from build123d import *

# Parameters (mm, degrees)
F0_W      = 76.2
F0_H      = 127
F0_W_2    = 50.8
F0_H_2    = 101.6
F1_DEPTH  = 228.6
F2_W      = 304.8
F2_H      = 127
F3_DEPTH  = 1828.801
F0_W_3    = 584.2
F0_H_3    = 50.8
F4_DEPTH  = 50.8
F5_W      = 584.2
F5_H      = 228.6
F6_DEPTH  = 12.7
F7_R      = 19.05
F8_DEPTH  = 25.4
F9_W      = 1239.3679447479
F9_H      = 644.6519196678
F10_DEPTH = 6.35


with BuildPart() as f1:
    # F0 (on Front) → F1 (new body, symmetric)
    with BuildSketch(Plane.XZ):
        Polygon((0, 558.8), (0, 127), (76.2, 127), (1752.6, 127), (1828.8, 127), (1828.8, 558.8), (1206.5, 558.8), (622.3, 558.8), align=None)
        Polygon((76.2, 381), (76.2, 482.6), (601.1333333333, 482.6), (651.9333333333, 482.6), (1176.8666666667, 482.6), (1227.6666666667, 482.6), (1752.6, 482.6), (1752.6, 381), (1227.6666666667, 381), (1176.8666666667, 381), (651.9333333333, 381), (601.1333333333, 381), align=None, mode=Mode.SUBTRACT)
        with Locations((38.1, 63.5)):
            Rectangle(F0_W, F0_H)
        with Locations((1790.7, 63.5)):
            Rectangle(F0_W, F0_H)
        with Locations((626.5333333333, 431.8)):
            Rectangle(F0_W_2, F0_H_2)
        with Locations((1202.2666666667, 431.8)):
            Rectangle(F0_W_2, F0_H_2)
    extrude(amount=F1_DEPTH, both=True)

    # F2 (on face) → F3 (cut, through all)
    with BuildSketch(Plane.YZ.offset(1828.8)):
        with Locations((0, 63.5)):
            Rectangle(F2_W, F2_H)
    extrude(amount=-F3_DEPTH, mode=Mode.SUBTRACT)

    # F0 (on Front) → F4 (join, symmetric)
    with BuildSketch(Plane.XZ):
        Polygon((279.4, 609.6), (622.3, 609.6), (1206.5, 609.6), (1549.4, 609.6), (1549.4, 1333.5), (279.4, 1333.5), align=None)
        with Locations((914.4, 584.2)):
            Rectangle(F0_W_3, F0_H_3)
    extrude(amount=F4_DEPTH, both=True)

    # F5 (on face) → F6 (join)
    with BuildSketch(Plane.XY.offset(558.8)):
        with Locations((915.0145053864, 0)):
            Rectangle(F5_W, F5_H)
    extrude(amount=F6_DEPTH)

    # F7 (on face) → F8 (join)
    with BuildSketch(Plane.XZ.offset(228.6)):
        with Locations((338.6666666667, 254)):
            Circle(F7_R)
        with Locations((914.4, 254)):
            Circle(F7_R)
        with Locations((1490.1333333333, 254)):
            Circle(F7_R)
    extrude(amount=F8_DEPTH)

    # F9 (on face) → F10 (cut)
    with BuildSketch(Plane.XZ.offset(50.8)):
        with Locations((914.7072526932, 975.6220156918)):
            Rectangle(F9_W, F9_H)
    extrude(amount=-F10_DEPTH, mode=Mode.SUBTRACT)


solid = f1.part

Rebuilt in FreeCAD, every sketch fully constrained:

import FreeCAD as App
import Part
import Sketcher

V = App.Vector
Q = App.Units.Quantity

doc = App.newDocument("Part")
body = doc.addObject("PartDesign::Body", "Body")

# Sketch on XZ plane
sketch1 = body.newObject("Sketcher::SketchObject", "Sketch")
sketch1.AttachmentSupport = (doc.getObject("XZ_Plane"), [""])
sketch1.MapMode = "FlatFace"
sketch1.addGeometry([
    Part.LineSegment(V(0, 559, 0), V(0, 0, 0)),  # 0
    Part.LineSegment(V(0, 0, 0), V(76, 0, 0)),  # 1
    Part.LineSegment(V(76, 0, 0), V(76, 127, 0)),  # 2
    Part.LineSegment(V(76, 127, 0), V(1753, 127, 0)),  # 3
    Part.LineSegment(V(1753, 127, 0), V(1753, 0, 0)),  # 4
    Part.LineSegment(V(1753, 0, 0), V(1829, 0, 0)),  # 5
    Part.LineSegment(V(1829, 0, 0), V(1829, 559, 0)),  # 6
    Part.LineSegment(V(1829, 559, 0), V(0, 559, 0)),  # 7
    Part.LineSegment(V(1753, 381, 0), V(1228, 381, 0)),  # 8
    Part.LineSegment(V(1228, 381, 0), V(1228, 483, 0)),  # 9
    Part.LineSegment(V(1228, 483, 0), V(1753, 483, 0)),  # 10
    Part.LineSegment(V(1753, 483, 0), V(1753, 381, 0)),  # 11
    Part.LineSegment(V(1177, 381, 0), V(652, 381, 0)),  # 12
    Part.LineSegment(V(652, 381, 0), V(652, 483, 0)),  # 13
    Part.LineSegment(V(652, 483, 0), V(1177, 483, 0)),  # 14
    Part.LineSegment(V(1177, 483, 0), V(1177, 381, 0)),  # 15
    Part.LineSegment(V(601, 381, 0), V(76, 381, 0)),  # 16
    Part.LineSegment(V(76, 381, 0), V(76, 483, 0)),  # 17
    Part.LineSegment(V(76, 483, 0), V(601, 483, 0)),  # 18
    Part.LineSegment(V(601, 483, 0), V(601, 381, 0)),  # 19
], False)
sketch1.addConstraint([
    Sketcher.Constraint("Coincident", 0, 2, 1, 1),
    Sketcher.Constraint("Coincident", 1, 2, 2, 1),
    Sketcher.Constraint("Coincident", 2, 2, 3, 1),
    Sketcher.Constraint("Coincident", 3, 2, 4, 1),
    Sketcher.Constraint("Coincident", 4, 2, 5, 1),
    Sketcher.Constraint("Coincident", 5, 2, 6, 1),
    Sketcher.Constraint("Coincident", 6, 2, 7, 1),
    Sketcher.Constraint("Coincident", 7, 2, 0, 1),
    Sketcher.Constraint("Coincident", 8, 2, 9, 1),
    Sketcher.Constraint("Coincident", 9, 2, 10, 1),
    Sketcher.Constraint("Coincident", 10, 2, 11, 1),
    Sketcher.Constraint("Coincident", 11, 2, 8, 1),
    Sketcher.Constraint("Coincident", 12, 2, 13, 1),
    Sketcher.Constraint("Coincident", 13, 2, 14, 1),
    Sketcher.Constraint("Coincident", 14, 2, 15, 1),
    Sketcher.Constraint("Coincident", 15, 2, 12, 1),
    Sketcher.Constraint("Coincident", 16, 2, 17, 1),
    Sketcher.Constraint("Coincident", 17, 2, 18, 1),
    Sketcher.Constraint("Coincident", 18, 2, 19, 1),
    Sketcher.Constraint("Coincident", 19, 2, 16, 1),
    Sketcher.Constraint("Vertical", 0),
    Sketcher.Constraint("Horizontal", 1),
    Sketcher.Constraint("Vertical", 2),
    Sketcher.Constraint("Horizontal", 3),
    Sketcher.Constraint("Vertical", 4),
    Sketcher.Constraint("Horizontal", 5),
    Sketcher.Constraint("Vertical", 6),
    Sketcher.Constraint("Horizontal", 7),
    Sketcher.Constraint("Horizontal", 8),
    Sketcher.Constraint("Vertical", 9),
    Sketcher.Constraint("Horizontal", 10),
    Sketcher.Constraint("Vertical", 11),
    Sketcher.Constraint("Horizontal", 12),
    Sketcher.Constraint("Vertical", 13),
    Sketcher.Constraint("Horizontal", 14),
    Sketcher.Constraint("Vertical", 15),
    Sketcher.Constraint("Horizontal", 16),
    Sketcher.Constraint("Vertical", 17),
    Sketcher.Constraint("Horizontal", 18),
    Sketcher.Constraint("Vertical", 19),
    Sketcher.Constraint("Coincident", 0, 2, -1, 1),
    Sketcher.Constraint("PointOnObject", 4, 2, -1),
    Sketcher.Constraint("Horizontal", 11, 2, 12, 2),
    Sketcher.Constraint("Horizontal", 10, 2, 13, 2),
    Sketcher.Constraint("Horizontal", 15, 2, 16, 2),
    Sketcher.Constraint("Horizontal", 14, 2, 17, 2),
    Sketcher.Constraint("Vertical", 4, 2, 10, 2),
    Sketcher.Constraint("Vertical", 2, 2, 16, 2),
    Sketcher.Constraint("Equal", 1, 5),
    Sketcher.Constraint("Equal", 10, 12),
    Sketcher.Constraint("Equal", 14, 16),
    Sketcher.Constraint("DistanceX", 1, 1, 1, 2, Q("3 in")),
    Sketcher.Constraint("DistanceX", 3, 1, 3, 2, Q("66 in")),
    Sketcher.Constraint("DistanceY", 0, 2, 0, 1, Q("22 in")),
    Sketcher.Constraint("DistanceY", 2, 1, 2, 2, Q("5 in")),
    Sketcher.Constraint("DistanceY", 9, 1, 9, 2, Q("4 in")),
    Sketcher.Constraint("DistanceY", -1, 1, 8, 2, Q("15 in")),
    Sketcher.Constraint("DistanceX", 14, 2, 9, 2, Q("2 in")),
    Sketcher.Constraint("DistanceX", 18, 2, 13, 2, Q("2 in")),
])
pad1 = body.newObject("PartDesign::Pad", "Pad")
pad1.Profile = sketch1
pad1.Length = Q("18 in")
pad1.Midplane = True

# Sketch on YZ plane
sketch2 = body.newObject("Sketcher::SketchObject", "Sketch001")
sketch2.AttachmentSupport = (doc.getObject("YZ_Plane"), [""])
sketch2.MapMode = "FlatFace"
sketch2.AttachmentOffset = App.Placement(V(0, 0, 72 * 25.4), App.Rotation())
sketch2.addGeometry([
    Part.LineSegment(V(-152, 127, 0), V(-152, 0, 0)),
    Part.LineSegment(V(-152, 0, 0), V(152, 0, 0)),
    Part.LineSegment(V(152, 0, 0), V(152, 127, 0)),
    Part.LineSegment(V(152, 127, 0), V(-152, 127, 0)),
], False)
sketch2.addConstraint([
    Sketcher.Constraint("Coincident", 0, 2, 1, 1),
    Sketcher.Constraint("Coincident", 1, 2, 2, 1),
    Sketcher.Constraint("Coincident", 2, 2, 3, 1),
    Sketcher.Constraint("Coincident", 3, 2, 0, 1),
    Sketcher.Constraint("Vertical", 0),
    Sketcher.Constraint("Horizontal", 1),
    Sketcher.Constraint("Vertical", 2),
    Sketcher.Constraint("Horizontal", 3),
    Sketcher.Constraint("Symmetric", 0, 2, 1, 2, -1, 1),
    Sketcher.Constraint("DistanceX", 1, 1, 1, 2, Q("12 in")),
    Sketcher.Constraint("DistanceY", 0, 2, 0, 1, Q("5 in")),
])
pocket1 = body.newObject("PartDesign::Pocket", "Pocket")
pocket1.Profile = sketch2
pocket1.Type = "ThroughAll"

# Sketch on XZ plane
sketch3 = body.newObject("Sketcher::SketchObject", "Sketch002")
sketch3.AttachmentSupport = (doc.getObject("XZ_Plane"), [""])
sketch3.MapMode = "FlatFace"
sketch3.addGeometry([
    Part.LineSegment(V(279, 610, 0), V(622, 610, 0)),  # 0
    Part.LineSegment(V(622, 610, 0), V(622, 559, 0)),  # 1
    Part.LineSegment(V(622, 559, 0), V(1206, 559, 0)),  # 2
    Part.LineSegment(V(1206, 559, 0), V(1206, 610, 0)),  # 3
    Part.LineSegment(V(1206, 610, 0), V(1549, 610, 0)),  # 4
    Part.LineSegment(V(1549, 610, 0), V(1549, 1334, 0)),  # 5
    Part.LineSegment(V(1549, 1334, 0), V(279, 1334, 0)),  # 6
    Part.LineSegment(V(279, 1334, 0), V(279, 610, 0)),  # 7
], False)
sketch3.addConstraint([
    Sketcher.Constraint("Coincident", 0, 2, 1, 1),
    Sketcher.Constraint("Coincident", 1, 2, 2, 1),
    Sketcher.Constraint("Coincident", 2, 2, 3, 1),
    Sketcher.Constraint("Coincident", 3, 2, 4, 1),
    Sketcher.Constraint("Coincident", 4, 2, 5, 1),
    Sketcher.Constraint("Coincident", 5, 2, 6, 1),
    Sketcher.Constraint("Coincident", 6, 2, 7, 1),
    Sketcher.Constraint("Coincident", 7, 2, 0, 1),
    Sketcher.Constraint("Horizontal", 0),
    Sketcher.Constraint("Vertical", 1),
    Sketcher.Constraint("Horizontal", 2),
    Sketcher.Constraint("Vertical", 3),
    Sketcher.Constraint("Horizontal", 4),
    Sketcher.Constraint("Vertical", 5),
    Sketcher.Constraint("Horizontal", 6),
    Sketcher.Constraint("Vertical", 7),
    Sketcher.Constraint("Horizontal", 0, 2, 3, 2),
    Sketcher.Constraint("Equal", 0, 4),
    Sketcher.Constraint("DistanceX", 2, 1, 2, 2, Q("23 in")),
    Sketcher.Constraint("DistanceX", 6, 2, 6, 1, Q("50 in")),
    Sketcher.Constraint("DistanceY", 1, 2, 1, 1, Q("2 in")),
    Sketcher.Constraint("DistanceY", 5, 1, 5, 2, Q("28.5 in")),
    Sketcher.Constraint("DistanceY", -1, 1, 0, 2, Q("24 in")),
    Sketcher.Constraint("DistanceX", -1, 1, 4, 2, Q("61 in")),
])
pad2 = body.newObject("PartDesign::Pad", "Pad001")
pad2.Profile = sketch3
pad2.Length = Q("4 in")
pad2.Midplane = True

# Sketch on XY plane
sketch4 = body.newObject("Sketcher::SketchObject", "Sketch003")
sketch4.AttachmentSupport = (doc.getObject("XY_Plane"), [""])
sketch4.MapMode = "FlatFace"
sketch4.AttachmentOffset = App.Placement(V(0, 0, 22 * 25.4), App.Rotation())
sketch4.addGeometry([
    Part.LineSegment(V(623, 114, 0), V(623, -114, 0)),
    Part.LineSegment(V(623, -114, 0), V(1207, -114, 0)),
    Part.LineSegment(V(1207, -114, 0), V(1207, 114, 0)),
    Part.LineSegment(V(1207, 114, 0), V(623, 114, 0)),
], False)
sketch4.addConstraint([
    Sketcher.Constraint("Coincident", 0, 2, 1, 1),
    Sketcher.Constraint("Coincident", 1, 2, 2, 1),
    Sketcher.Constraint("Coincident", 2, 2, 3, 1),
    Sketcher.Constraint("Coincident", 3, 2, 0, 1),
    Sketcher.Constraint("Vertical", 0),
    Sketcher.Constraint("Horizontal", 1),
    Sketcher.Constraint("Vertical", 2),
    Sketcher.Constraint("Horizontal", 3),
    Sketcher.Constraint("DistanceX", 1, 1, 1, 2, Q("23 in")),
    Sketcher.Constraint("DistanceY", 0, 2, 0, 1, Q("9 in")),
    Sketcher.Constraint("DistanceY", 0, 2, -1, 1, Q("4.5 in")),
    Sketcher.Constraint("DistanceX", -1, 1, 0, 2, Q("622.914505 mm")),
])
pad3 = body.newObject("PartDesign::Pad", "Pad002")
pad3.Profile = sketch4
pad3.Length = Q("0.5 in")

# Sketch on XZ plane
sketch5 = body.newObject("Sketcher::SketchObject", "Sketch004")
sketch5.AttachmentSupport = (doc.getObject("XZ_Plane"), [""])
sketch5.MapMode = "FlatFace"
sketch5.AttachmentOffset = App.Placement(V(0, 0, 9 * 25.4), App.Rotation())
sketch5.addGeometry([
    Part.Circle(V(339, 254, 0), V(0, 0, 1), 19),
    Part.Circle(V(914, 254, 0), V(0, 0, 1), 19),
    Part.Circle(V(1490, 254, 0), V(0, 0, 1), 19),
], False)
sketch5.addConstraint([
    Sketcher.Constraint("Equal", 0, 1),
    Sketcher.Constraint("Equal", 1, 2),
    Sketcher.Constraint("Horizontal", 0, 3, 1, 3),
    Sketcher.Constraint("Horizontal", 1, 3, 2, 3),
    Sketcher.Constraint("Diameter", 0, Q("1.5 in")),
    Sketcher.Constraint("DistanceY", -1, 1, 0, 3, Q("10 in")),
    Sketcher.Constraint("DistanceX", -1, 1, 1, 3, Q("36 in")),
    Sketcher.Constraint("DistanceX", -1, 1, 0, 3, Q("338.666667 mm")),
    Sketcher.Constraint("DistanceX", -1, 1, 2, 3, Q("1490.133333 mm")),
])
pad4 = body.newObject("PartDesign::Pad", "Pad003")
pad4.Profile = sketch5
pad4.Length = Q("1 in")

# Sketch on XZ plane
sketch6 = body.newObject("Sketcher::SketchObject", "Sketch005")
sketch6.AttachmentSupport = (doc.getObject("XZ_Plane"), [""])
sketch6.MapMode = "FlatFace"
sketch6.AttachmentOffset = App.Placement(V(0, 0, 2 * 25.4), App.Rotation())
sketch6.addGeometry([
    Part.LineSegment(V(295, 1298, 0), V(295, 653, 0)),
    Part.LineSegment(V(295, 653, 0), V(1534, 653, 0)),
    Part.LineSegment(V(1534, 653, 0), V(1534, 1298, 0)),
    Part.LineSegment(V(1534, 1298, 0), V(295, 1298, 0)),
], False)
sketch6.addConstraint([
    Sketcher.Constraint("Coincident", 0, 2, 1, 1),
    Sketcher.Constraint("Coincident", 1, 2, 2, 1),
    Sketcher.Constraint("Coincident", 2, 2, 3, 1),
    Sketcher.Constraint("Coincident", 3, 2, 0, 1),
    Sketcher.Constraint("Vertical", 0),
    Sketcher.Constraint("Horizontal", 1),
    Sketcher.Constraint("Vertical", 2),
    Sketcher.Constraint("Horizontal", 3),
    Sketcher.Constraint("DistanceY", 0, 2, 0, 1, Q("644.65192 mm")),
    Sketcher.Constraint("DistanceX", 1, 1, 1, 2, Q("1239.367945 mm")),
    Sketcher.Constraint("DistanceX", -1, 1, 0, 2, Q("295.02328 mm")),
    Sketcher.Constraint("DistanceY", -1, 1, 0, 2, Q("653.296056 mm")),
])
pocket2 = body.newObject("PartDesign::Pocket", "Pocket001")
pocket2.Profile = sketch6
pocket2.Length = Q("0.25 in")

doc.recompute()
